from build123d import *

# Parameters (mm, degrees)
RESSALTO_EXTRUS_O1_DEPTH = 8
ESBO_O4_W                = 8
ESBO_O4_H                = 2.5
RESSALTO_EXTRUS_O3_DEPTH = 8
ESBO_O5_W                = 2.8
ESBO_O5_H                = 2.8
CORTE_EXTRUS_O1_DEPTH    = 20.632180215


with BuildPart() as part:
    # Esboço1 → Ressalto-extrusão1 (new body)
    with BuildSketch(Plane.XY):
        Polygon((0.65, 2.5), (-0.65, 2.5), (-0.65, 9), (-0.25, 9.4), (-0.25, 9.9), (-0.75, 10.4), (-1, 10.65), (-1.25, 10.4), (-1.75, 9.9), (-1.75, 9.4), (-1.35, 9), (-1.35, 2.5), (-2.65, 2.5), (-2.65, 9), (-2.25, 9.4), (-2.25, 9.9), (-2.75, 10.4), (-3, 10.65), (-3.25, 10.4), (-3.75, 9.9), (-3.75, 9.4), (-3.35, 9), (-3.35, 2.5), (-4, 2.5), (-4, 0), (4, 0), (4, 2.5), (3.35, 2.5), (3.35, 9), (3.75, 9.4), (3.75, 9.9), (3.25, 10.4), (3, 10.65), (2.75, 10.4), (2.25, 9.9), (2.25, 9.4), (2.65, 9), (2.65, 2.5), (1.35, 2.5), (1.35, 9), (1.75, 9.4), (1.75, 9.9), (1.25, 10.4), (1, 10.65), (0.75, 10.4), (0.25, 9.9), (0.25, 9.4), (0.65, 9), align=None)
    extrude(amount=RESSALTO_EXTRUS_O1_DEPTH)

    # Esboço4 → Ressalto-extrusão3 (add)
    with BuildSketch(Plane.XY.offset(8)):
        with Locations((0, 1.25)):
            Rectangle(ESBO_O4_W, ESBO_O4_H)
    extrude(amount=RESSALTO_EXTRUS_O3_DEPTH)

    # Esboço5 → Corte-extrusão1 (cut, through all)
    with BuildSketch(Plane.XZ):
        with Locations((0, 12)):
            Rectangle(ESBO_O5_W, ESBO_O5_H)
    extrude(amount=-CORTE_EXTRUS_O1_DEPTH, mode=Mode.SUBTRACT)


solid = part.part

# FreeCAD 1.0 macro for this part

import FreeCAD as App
import Part
import Sketcher
from FreeCAD import Vector
Q = App.Units.Quantity

doc = App.newDocument("Part")
params = doc.addObject("Spreadsheet::Sheet", "Params")
for row, (alias, value) in enumerate([
    ("sketch1_width", "8 mm"),
    ("sketch1_width2", "1.3 mm"),
    ("sketch1_height", "6.5 mm"),
    ("sketch1_height2", "0.5 mm"),
    ("sketch1_height3", "2.5 mm"),
    ("pad1_length", "8 mm"),
    ("sketch2_width", "8 mm"),
    ("sketch2_height", "2.5 mm"),
    ("pad2_length", "8 mm"),
    ("sketch3_width", "2.8 mm"),
], start=1):
    params.set(f"A{row}", alias)
    params.set(f"B{row}", "=" + value)
    params.setAlias(f"B{row}", alias)

body = doc.addObject("PartDesign::Body", "Body")

# Sketch on XY plane
sketch1 = doc.addObject("Sketcher::SketchObject", "Sketch")
body.addObject(sketch1)
sketch1.AttachmentSupport = (doc.XY_Plane, [""])
sketch1.MapMode = "FlatFace"
sketch1.addGeometry([
    Part.LineSegment(Vector(0.65, 2.5, 0), Vector(-0.65, 2.5, 0)),  # 0
    Part.LineSegment(Vector(-0.65, 2.5, 0), Vector(-0.65, 9, 0)),  # 1
    Part.LineSegment(Vector(-0.65, 9, 0), Vector(-0.25, 9.4, 0)),  # 2
    Part.LineSegment(Vector(-0.25, 9.4, 0), Vector(-0.25, 9.9, 0)),  # 3
    Part.LineSegment(Vector(-0.25, 9.9, 0), Vector(-1, 10.65, 0)),  # 4
    Part.LineSegment(Vector(-1, 10.65, 0), Vector(-1.75, 9.9, 0)),  # 5
    Part.LineSegment(Vector(-1.75, 9.9, 0), Vector(-1.75, 9.4, 0)),  # 6
    Part.LineSegment(Vector(-1.75, 9.4, 0), Vector(-1.35, 9, 0)),  # 7
    Part.LineSegment(Vector(-1.35, 9, 0), Vector(-1.35, 2.5, 0)),  # 8
    Part.LineSegment(Vector(-1.35, 2.5, 0), Vector(-2.65, 2.5, 0)),  # 9
    Part.LineSegment(Vector(-2.65, 2.5, 0), Vector(-2.65, 9, 0)),  # 10
    Part.LineSegment(Vector(-2.65, 9, 0), Vector(-2.25, 9.4, 0)),  # 11
    Part.LineSegment(Vector(-2.25, 9.4, 0), Vector(-2.25, 9.9, 0)),  # 12
    Part.LineSegment(Vector(-2.25, 9.9, 0), Vector(-3, 10.65, 0)),  # 13
    Part.LineSegment(Vector(-3, 10.65, 0), Vector(-3.75, 9.9, 0)),  # 14
    Part.LineSegment(Vector(-3.75, 9.9, 0), Vector(-3.75, 9.4, 0)),  # 15
    Part.LineSegment(Vector(-3.75, 9.4, 0), Vector(-3.35, 9, 0)),  # 16
    Part.LineSegment(Vector(-3.35, 9, 0), Vector(-3.35, 2.5, 0)),  # 17
    Part.LineSegment(Vector(-3.35, 2.5, 0), Vector(-4, 2.5, 0)),  # 18
    Part.LineSegment(Vector(-4, 2.5, 0), Vector(-4, 0, 0)),  # 19
    Part.LineSegment(Vector(-4, 0, 0), Vector(4, 0, 0)),  # 20
    Part.LineSegment(Vector(4, 0, 0), Vector(4, 2.5, 0)),  # 21
    Part.LineSegment(Vector(4, 2.5, 0), Vector(3.35, 2.5, 0)),  # 22
    Part.LineSegment(Vector(3.35, 2.5, 0), Vector(3.35, 9, 0)),  # 23
    Part.LineSegment(Vector(3.35, 9, 0), Vector(3.75, 9.4, 0)),  # 24
    Part.LineSegment(Vector(3.75, 9.4, 0), Vector(3.75, 9.9, 0)),  # 25
    Part.LineSegment(Vector(3.75, 9.9, 0), Vector(3, 10.65, 0)),  # 26
    Part.LineSegment(Vector(3, 10.65, 0), Vector(2.25, 9.9, 0)),  # 27
    Part.LineSegment(Vector(2.25, 9.9, 0), Vector(2.25, 9.4, 0)),  # 28
    Part.LineSegment(Vector(2.25, 9.4, 0), Vector(2.65, 9, 0)),  # 29
    Part.LineSegment(Vector(2.65, 9, 0), Vector(2.65, 2.5, 0)),  # 30
    Part.LineSegment(Vector(2.65, 2.5, 0), Vector(1.35, 2.5, 0)),  # 31
    Part.LineSegment(Vector(1.35, 2.5, 0), Vector(1.35, 9, 0)),  # 32
    Part.LineSegment(Vector(1.35, 9, 0), Vector(1.75, 9.4, 0)),  # 33
    Part.LineSegment(Vector(1.75, 9.4, 0), Vector(1.75, 9.9, 0)),  # 34
    Part.LineSegment(Vector(1.75, 9.9, 0), Vector(1, 10.65, 0)),  # 35
    Part.LineSegment(Vector(1, 10.65, 0), Vector(0.25, 9.9, 0)),  # 36
    Part.LineSegment(Vector(0.25, 9.9, 0), Vector(0.25, 9.4, 0)),  # 37
    Part.LineSegment(Vector(0.25, 9.4, 0), Vector(0.65, 9, 0)),  # 38
    Part.LineSegment(Vector(0.65, 9, 0), Vector(0.65, 2.5, 0)),  # 39
], False)
sketch1.addConstraint([
    Sketcher.Constraint("Coincident", 0, 2, 1, 1),
    Sketcher.Constraint("Coincident", 1, 2, 2, 1),
    Sketcher.Constraint("Coincident", 2, 2, 3, 1),
    Sketcher.Constraint("Coincident", 3, 2, 4, 1),
    Sketcher.Constraint("Coincident", 4, 2, 5, 1),
    Sketcher.Constraint("Coincident", 5, 2, 6, 1),
    Sketcher.Constraint("Coincident", 6, 2, 7, 1),
    Sketcher.Constraint("Coincident", 7, 2, 8, 1),
    Sketcher.Constraint("Coincident", 8, 2, 9, 1),
    Sketcher.Constraint("Coincident", 9, 2, 10, 1),
    Sketcher.Constraint("Coincident", 10, 2, 11, 1),
    Sketcher.Constraint("Coincident", 11, 2, 12, 1),
    Sketcher.Constraint("Coincident", 12, 2, 13, 1),
    Sketcher.Constraint("Coincident", 13, 2, 14, 1),
    Sketcher.Constraint("Coincident", 14, 2, 15, 1),
    Sketcher.Constraint("Coincident", 15, 2, 16, 1),
    Sketcher.Constraint("Coincident", 16, 2, 17, 1),
    Sketcher.Constraint("Coincident", 17, 2, 18, 1),
    Sketcher.Constraint("Coincident", 18, 2, 19, 1),
    Sketcher.Constraint("Coincident", 19, 2, 20, 1),
    Sketcher.Constraint("Coincident", 20, 2, 21, 1),
    Sketcher.Constraint("Coincident", 21, 2, 22, 1),
    Sketcher.Constraint("Coincident", 22, 2, 23, 1),
    Sketcher.Constraint("Coincident", 23, 2, 24, 1),
    Sketcher.Constraint("Coincident", 24, 2, 25, 1),
    Sketcher.Constraint("Coincident", 25, 2, 26, 1),
    Sketcher.Constraint("Coincident", 26, 2, 27, 1),
    Sketcher.Constraint("Coincident", 27, 2, 28, 1),
    Sketcher.Constraint("Coincident", 28, 2, 29, 1),
    Sketcher.Constraint("Coincident", 29, 2, 30, 1),
    Sketcher.Constraint("Coincident", 30, 2, 31, 1),
    Sketcher.Constraint("Coincident", 31, 2, 32, 1),
    Sketcher.Constraint("Coincident", 32, 2, 33, 1),
    Sketcher.Constraint("Coincident", 33, 2, 34, 1),
    Sketcher.Constraint("Coincident", 34, 2, 35, 1),
    Sketcher.Constraint("Coincident", 35, 2, 36, 1),
    Sketcher.Constraint("Coincident", 36, 2, 37, 1),
    Sketcher.Constraint("Coincident", 37, 2, 38, 1),
    Sketcher.Constraint("Coincident", 38, 2, 39, 1),
    Sketcher.Constraint("Coincident", 39, 2, 0, 1),
    Sketcher.Constraint("Horizontal", 0),
    Sketcher.Constraint("Vertical", 1),
    Sketcher.Constraint("Vertical", 3),
    Sketcher.Constraint("Vertical", 6),
    Sketcher.Constraint("Vertical", 8),
    Sketcher.Constraint("Horizontal", 9),
    Sketcher.Constraint("Vertical", 10),
    Sketcher.Constraint("Vertical", 12),
    Sketcher.Constraint("Vertical", 15),
    Sketcher.Constraint("Vertical", 17),
    Sketcher.Constraint("Horizontal", 18),
    Sketcher.Constraint("Vertical", 19),
    Sketcher.Constraint("Horizontal", 20),
    Sketcher.Constraint("Vertical", 21),
    Sketcher.Constraint("Horizontal", 22),
    Sketcher.Constraint("Vertical", 23),
    Sketcher.Constraint("Vertical", 25),
    Sketcher.Constraint("Vertical", 28),
    Sketcher.Constraint("Vertical", 30),
    Sketcher.Constraint("Horizontal", 31),
    Sketcher.Constraint("Vertical", 32),
    Sketcher.Constraint("Vertical", 34),
    Sketcher.Constraint("Vertical", 37),
    Sketcher.Constraint("Vertical", 39),
    Sketcher.Constraint("Symmetric", 19, 2, 20, 2, -1, 1),
    Sketcher.Constraint("Symmetric", 17, 2, 22, 2, -2),
    Sketcher.Constraint("Symmetric", 15, 2, 24, 2, -2),
    Sketcher.Constraint("Symmetric", 13, 2, 26, 2, -2),
    Sketcher.Constraint("Symmetric", 12, 2, 27, 2, -2),
    Sketcher.Constraint("Symmetric", 10, 2, 29, 2, -2),
    Sketcher.Constraint("Symmetric", 8, 2, 31, 2, -2),
    Sketcher.Constraint("Symmetric", 6, 2, 33, 2, -2),
    Sketcher.Constraint("Symmetric", 4, 2, 35, 2, -2),
    Sketcher.Constraint("Symmetric", 3, 2, 36, 2, -2),
    Sketcher.Constraint("Symmetric", 1, 2, 38, 2, -2),
    Sketcher.Constraint("Perpendicular", 2, 4),
    Sketcher.Constraint("Perpendicular", 4, 5),
    Sketcher.Constraint("Perpendicular", 5, 7),
    Sketcher.Constraint("Perpendicular", 7, 11),
    Sketcher.Constraint("Perpendicular", 11, 13),
    Sketcher.Constraint("Perpendicular", 13, 14),
    Sketcher.Constraint("Perpendicular", 14, 16),
    Sketcher.Constraint("Perpendicular", 16, 24),
    Sketcher.Constraint("Perpendicular", 24, 26),
    Sketcher.Constraint("Perpendicular", 26, 27),
    Sketcher.Constraint("Perpendicular", 27, 29),
    Sketcher.Constraint("Perpendicular", 29, 33),
    Sketcher.Constraint("Perpendicular", 33, 35),
    Sketcher.Constraint("Perpendicular", 36, 38),
    Sketcher.Constraint("Horizontal", 3, 2, 5, 2),
    Sketcher.Constraint("Horizontal", 2, 2, 6, 2),
    Sketcher.Constraint("Horizontal", 1, 2, 7, 2),
    Sketcher.Constraint("Horizontal", 0, 2, 8, 2),
    Sketcher.Constraint("Horizontal", 7, 2, 10, 2),
    Sketcher.Constraint("Horizontal", 6, 2, 11, 2),
    Sketcher.Constraint("Horizontal", 5, 2, 12, 2),
    Sketcher.Constraint("Horizontal", 4, 2, 13, 2),
    Sketcher.Constraint("Horizontal", 12, 2, 14, 2),
    Sketcher.Constraint("Horizontal", 11, 2, 15, 2),
    Sketcher.Constraint("Horizontal", 10, 2, 16, 2),
    Sketcher.Constraint("Horizontal", 9, 2, 17, 2),
    Sketcher.Constraint("Equal", 0, 9),
    Sketcher.Constraint("DistanceX", 20, 1, 20, 2, Q("8 mm")),
    Sketcher.Constraint("DistanceX", 0, 2, 0, 1, Q("1.3 mm")),
    Sketcher.Constraint("DistanceY", 1, 1, 1, 2, Q("6.5 mm")),
    Sketcher.Constraint("DistanceY", 3, 1, 3, 2, Q("0.5 mm")),
    Sketcher.Constraint("DistanceY", 19, 2, 19, 1, Q("2.5 mm")),
    Sketcher.Constraint("DistanceX", 4, 2, -1, 1, Q("1 mm")),
    Sketcher.Constraint("DistanceY", -1, 1, 2, 2, Q("9.4 mm")),
])
sketch1.setExpression("Constraints[102]", "Params.sketch1_width")
sketch1.setExpression("Constraints[103]", "Params.sketch1_width2")
sketch1.setExpression("Constraints[104]", "Params.sketch1_height")
sketch1.setExpression("Constraints[105]", "Params.sketch1_height2")
sketch1.setExpression("Constraints[106]", "Params.sketch1_height3")
pad1 = doc.addObject("PartDesign::Pad", "Pad")
body.addObject(pad1)
pad1.Profile = sketch1
pad1.setExpression("Length", "Params.pad1_length")

# Sketch on XY plane
sketch2 = doc.addObject("Sketcher::SketchObject", "Sketch001")
body.addObject(sketch2)
sketch2.AttachmentSupport = (doc.XY_Plane, [""])
sketch2.MapMode = "FlatFace"
sketch2.AttachmentOffset = App.Placement(Vector(0, 0, 8), App.Rotation())
sketch2.addGeometry([
    Part.LineSegment(Vector(-4, 2.5, 0), Vector(-4, 0, 0)),
    Part.LineSegment(Vector(-4, 0, 0), Vector(4, 0, 0)),
    Part.LineSegment(Vector(4, 0, 0), Vector(4, 2.5, 0)),
    Part.LineSegment(Vector(4, 2.5, 0), Vector(-4, 2.5, 0)),
], False)
sketch2.addConstraint([
    Sketcher.Constraint("Coincident", 0, 2, 1, 1),
    Sketcher.Constraint("Coincident", 1, 2, 2, 1),
    Sketcher.Constraint("Coincident", 2, 2, 3, 1),
    Sketcher.Constraint("Coincident", 3, 2, 0, 1),
    Sketcher.Constraint("Vertical", 0),
    Sketcher.Constraint("Horizontal", 1),
    Sketcher.Constraint("Vertical", 2),
    Sketcher.Constraint("Horizontal", 3),
    Sketcher.Constraint("Symmetric", 0, 2, 1, 2, -1, 1),
    Sketcher.Constraint("DistanceX", 1, 1, 1, 2, Q("8 mm")),
    Sketcher.Constraint("DistanceY", 0, 2, 0, 1, Q("2.5 mm")),
])
sketch2.setExpression("Constraints[9]", "Params.sketch2_width")
sketch2.setExpression("Constraints[10]", "Params.sketch2_height")
pad2 = doc.addObject("PartDesign::Pad", "Pad001")
body.addObject(pad2)
pad2.Profile = sketch2
pad2.setExpression("Length", "Params.pad2_length")

# Sketch on XZ plane
sketch3 = doc.addObject("Sketcher::SketchObject", "Sketch002")
body.addObject(sketch3)
sketch3.AttachmentSupport = (doc.XZ_Plane, [""])
sketch3.MapMode = "FlatFace"
sketch3.addGeometry([
    Part.LineSegment(Vector(-1.4, 13.4, 0), Vector(-1.4, 10.6, 0)),
    Part.LineSegment(Vector(-1.4, 10.6, 0), Vector(1.4, 10.6, 0)),
    Part.LineSegment(Vector(1.4, 10.6, 0), Vector(1.4, 13.4, 0)),
    Part.LineSegment(Vector(1.4, 13.4, 0), Vector(-1.4, 13.4, 0)),
], False)
sketch3.addConstraint([
    Sketcher.Constraint("Coincident", 0, 2, 1, 1),
    Sketcher.Constraint("Coincident", 1, 2, 2, 1),
    Sketcher.Constraint("Coincident", 2, 2, 3, 1),
    Sketcher.Constraint("Coincident", 3, 2, 0, 1),
    Sketcher.Constraint("Vertical", 0),
    Sketcher.Constraint("Horizontal", 1),
    Sketcher.Constraint("Vertical", 2),
    Sketcher.Constraint("Horizontal", 3),
    Sketcher.Constraint("Equal", 3, 0),
    Sketcher.Constraint("DistanceX", 1, 1, 1, 2, Q("2.8 mm")),
    Sketcher.Constraint("DistanceX", 0, 2, -1, 1, Q("1.4 mm")),
    Sketcher.Constraint("DistanceY", -1, 1, 0, 2, Q("10.6 mm")),
])
sketch3.setExpression("Constraints[9]", "Params.sketch3_width")
pocket1 = doc.addObject("PartDesign::Pocket", "Pocket")
body.addObject(pocket1)
pocket1.Profile = sketch3
pocket1.Type = "ThroughAll"

doc.recompute()
